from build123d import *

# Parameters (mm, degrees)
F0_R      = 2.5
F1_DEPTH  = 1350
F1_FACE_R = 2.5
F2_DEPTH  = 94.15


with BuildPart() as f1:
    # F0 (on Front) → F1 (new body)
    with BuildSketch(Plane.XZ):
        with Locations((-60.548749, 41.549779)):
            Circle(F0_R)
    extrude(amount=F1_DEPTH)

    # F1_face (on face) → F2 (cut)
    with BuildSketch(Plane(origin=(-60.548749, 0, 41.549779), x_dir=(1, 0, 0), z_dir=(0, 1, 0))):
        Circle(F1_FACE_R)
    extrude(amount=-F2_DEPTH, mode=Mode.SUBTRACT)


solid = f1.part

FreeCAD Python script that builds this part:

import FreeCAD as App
import Part
import Sketcher

V = App.Vector

doc = App.newDocument("Part")
body = doc.addObject("PartDesign::Body", "Body")

sketch1 = doc.addObject("Sketcher::SketchObject", "Sketch")
body.addObject(sketch1)
sketch1.AttachmentSupport = (doc.XZ_Plane, [""])
sketch1.MapMode = "FlatFace"
sketch1.addGeometry(Part.Circle(V(-60.548749, 41.549779, 0), V(0, 0, 1), 2.5), False)
sketch1.addConstraint(Sketcher.Constraint("Diameter", 0, 5.0))
sketch1.addConstraint(Sketcher.Constraint("DistanceX", 0, 3, -1, 1, 60.548749))
sketch1.addConstraint(Sketcher.Constraint("DistanceY", -1, 1, 0, 3, 41.549779))
pad1 = doc.addObject("PartDesign::Pad", "Pad")
body.addObject(pad1)
pad1.Profile = sketch1
pad1.Length = 1350

sketch2 = doc.addObject("Sketcher::SketchObject", "Sketch001")
body.addObject(sketch2)
sketch2.AttachmentSupport = (doc.XZ_Plane, [""])
sketch2.MapMode = "FlatFace"
sketch2.addGeometry(Part.Circle(V(-60.548749, 41.549779, 0), V(0, 0, 1), 2.5), False)
sketch2.addConstraint(Sketcher.Constraint("Diameter", 0, 5.0))
sketch2.addConstraint(Sketcher.Constraint("DistanceX", 0, 3, -1, 1, 60.548749))
sketch2.addConstraint(Sketcher.Constraint("DistanceY", -1, 1, 0, 3, 41.549779))
pocket1 = doc.addObject("PartDesign::Pocket", "Pocket")
body.addObject(pocket1)
pocket1.Profile = sketch2
pocket1.Length = 94.15
pocket1.Reversed = True

doc.recompute()
